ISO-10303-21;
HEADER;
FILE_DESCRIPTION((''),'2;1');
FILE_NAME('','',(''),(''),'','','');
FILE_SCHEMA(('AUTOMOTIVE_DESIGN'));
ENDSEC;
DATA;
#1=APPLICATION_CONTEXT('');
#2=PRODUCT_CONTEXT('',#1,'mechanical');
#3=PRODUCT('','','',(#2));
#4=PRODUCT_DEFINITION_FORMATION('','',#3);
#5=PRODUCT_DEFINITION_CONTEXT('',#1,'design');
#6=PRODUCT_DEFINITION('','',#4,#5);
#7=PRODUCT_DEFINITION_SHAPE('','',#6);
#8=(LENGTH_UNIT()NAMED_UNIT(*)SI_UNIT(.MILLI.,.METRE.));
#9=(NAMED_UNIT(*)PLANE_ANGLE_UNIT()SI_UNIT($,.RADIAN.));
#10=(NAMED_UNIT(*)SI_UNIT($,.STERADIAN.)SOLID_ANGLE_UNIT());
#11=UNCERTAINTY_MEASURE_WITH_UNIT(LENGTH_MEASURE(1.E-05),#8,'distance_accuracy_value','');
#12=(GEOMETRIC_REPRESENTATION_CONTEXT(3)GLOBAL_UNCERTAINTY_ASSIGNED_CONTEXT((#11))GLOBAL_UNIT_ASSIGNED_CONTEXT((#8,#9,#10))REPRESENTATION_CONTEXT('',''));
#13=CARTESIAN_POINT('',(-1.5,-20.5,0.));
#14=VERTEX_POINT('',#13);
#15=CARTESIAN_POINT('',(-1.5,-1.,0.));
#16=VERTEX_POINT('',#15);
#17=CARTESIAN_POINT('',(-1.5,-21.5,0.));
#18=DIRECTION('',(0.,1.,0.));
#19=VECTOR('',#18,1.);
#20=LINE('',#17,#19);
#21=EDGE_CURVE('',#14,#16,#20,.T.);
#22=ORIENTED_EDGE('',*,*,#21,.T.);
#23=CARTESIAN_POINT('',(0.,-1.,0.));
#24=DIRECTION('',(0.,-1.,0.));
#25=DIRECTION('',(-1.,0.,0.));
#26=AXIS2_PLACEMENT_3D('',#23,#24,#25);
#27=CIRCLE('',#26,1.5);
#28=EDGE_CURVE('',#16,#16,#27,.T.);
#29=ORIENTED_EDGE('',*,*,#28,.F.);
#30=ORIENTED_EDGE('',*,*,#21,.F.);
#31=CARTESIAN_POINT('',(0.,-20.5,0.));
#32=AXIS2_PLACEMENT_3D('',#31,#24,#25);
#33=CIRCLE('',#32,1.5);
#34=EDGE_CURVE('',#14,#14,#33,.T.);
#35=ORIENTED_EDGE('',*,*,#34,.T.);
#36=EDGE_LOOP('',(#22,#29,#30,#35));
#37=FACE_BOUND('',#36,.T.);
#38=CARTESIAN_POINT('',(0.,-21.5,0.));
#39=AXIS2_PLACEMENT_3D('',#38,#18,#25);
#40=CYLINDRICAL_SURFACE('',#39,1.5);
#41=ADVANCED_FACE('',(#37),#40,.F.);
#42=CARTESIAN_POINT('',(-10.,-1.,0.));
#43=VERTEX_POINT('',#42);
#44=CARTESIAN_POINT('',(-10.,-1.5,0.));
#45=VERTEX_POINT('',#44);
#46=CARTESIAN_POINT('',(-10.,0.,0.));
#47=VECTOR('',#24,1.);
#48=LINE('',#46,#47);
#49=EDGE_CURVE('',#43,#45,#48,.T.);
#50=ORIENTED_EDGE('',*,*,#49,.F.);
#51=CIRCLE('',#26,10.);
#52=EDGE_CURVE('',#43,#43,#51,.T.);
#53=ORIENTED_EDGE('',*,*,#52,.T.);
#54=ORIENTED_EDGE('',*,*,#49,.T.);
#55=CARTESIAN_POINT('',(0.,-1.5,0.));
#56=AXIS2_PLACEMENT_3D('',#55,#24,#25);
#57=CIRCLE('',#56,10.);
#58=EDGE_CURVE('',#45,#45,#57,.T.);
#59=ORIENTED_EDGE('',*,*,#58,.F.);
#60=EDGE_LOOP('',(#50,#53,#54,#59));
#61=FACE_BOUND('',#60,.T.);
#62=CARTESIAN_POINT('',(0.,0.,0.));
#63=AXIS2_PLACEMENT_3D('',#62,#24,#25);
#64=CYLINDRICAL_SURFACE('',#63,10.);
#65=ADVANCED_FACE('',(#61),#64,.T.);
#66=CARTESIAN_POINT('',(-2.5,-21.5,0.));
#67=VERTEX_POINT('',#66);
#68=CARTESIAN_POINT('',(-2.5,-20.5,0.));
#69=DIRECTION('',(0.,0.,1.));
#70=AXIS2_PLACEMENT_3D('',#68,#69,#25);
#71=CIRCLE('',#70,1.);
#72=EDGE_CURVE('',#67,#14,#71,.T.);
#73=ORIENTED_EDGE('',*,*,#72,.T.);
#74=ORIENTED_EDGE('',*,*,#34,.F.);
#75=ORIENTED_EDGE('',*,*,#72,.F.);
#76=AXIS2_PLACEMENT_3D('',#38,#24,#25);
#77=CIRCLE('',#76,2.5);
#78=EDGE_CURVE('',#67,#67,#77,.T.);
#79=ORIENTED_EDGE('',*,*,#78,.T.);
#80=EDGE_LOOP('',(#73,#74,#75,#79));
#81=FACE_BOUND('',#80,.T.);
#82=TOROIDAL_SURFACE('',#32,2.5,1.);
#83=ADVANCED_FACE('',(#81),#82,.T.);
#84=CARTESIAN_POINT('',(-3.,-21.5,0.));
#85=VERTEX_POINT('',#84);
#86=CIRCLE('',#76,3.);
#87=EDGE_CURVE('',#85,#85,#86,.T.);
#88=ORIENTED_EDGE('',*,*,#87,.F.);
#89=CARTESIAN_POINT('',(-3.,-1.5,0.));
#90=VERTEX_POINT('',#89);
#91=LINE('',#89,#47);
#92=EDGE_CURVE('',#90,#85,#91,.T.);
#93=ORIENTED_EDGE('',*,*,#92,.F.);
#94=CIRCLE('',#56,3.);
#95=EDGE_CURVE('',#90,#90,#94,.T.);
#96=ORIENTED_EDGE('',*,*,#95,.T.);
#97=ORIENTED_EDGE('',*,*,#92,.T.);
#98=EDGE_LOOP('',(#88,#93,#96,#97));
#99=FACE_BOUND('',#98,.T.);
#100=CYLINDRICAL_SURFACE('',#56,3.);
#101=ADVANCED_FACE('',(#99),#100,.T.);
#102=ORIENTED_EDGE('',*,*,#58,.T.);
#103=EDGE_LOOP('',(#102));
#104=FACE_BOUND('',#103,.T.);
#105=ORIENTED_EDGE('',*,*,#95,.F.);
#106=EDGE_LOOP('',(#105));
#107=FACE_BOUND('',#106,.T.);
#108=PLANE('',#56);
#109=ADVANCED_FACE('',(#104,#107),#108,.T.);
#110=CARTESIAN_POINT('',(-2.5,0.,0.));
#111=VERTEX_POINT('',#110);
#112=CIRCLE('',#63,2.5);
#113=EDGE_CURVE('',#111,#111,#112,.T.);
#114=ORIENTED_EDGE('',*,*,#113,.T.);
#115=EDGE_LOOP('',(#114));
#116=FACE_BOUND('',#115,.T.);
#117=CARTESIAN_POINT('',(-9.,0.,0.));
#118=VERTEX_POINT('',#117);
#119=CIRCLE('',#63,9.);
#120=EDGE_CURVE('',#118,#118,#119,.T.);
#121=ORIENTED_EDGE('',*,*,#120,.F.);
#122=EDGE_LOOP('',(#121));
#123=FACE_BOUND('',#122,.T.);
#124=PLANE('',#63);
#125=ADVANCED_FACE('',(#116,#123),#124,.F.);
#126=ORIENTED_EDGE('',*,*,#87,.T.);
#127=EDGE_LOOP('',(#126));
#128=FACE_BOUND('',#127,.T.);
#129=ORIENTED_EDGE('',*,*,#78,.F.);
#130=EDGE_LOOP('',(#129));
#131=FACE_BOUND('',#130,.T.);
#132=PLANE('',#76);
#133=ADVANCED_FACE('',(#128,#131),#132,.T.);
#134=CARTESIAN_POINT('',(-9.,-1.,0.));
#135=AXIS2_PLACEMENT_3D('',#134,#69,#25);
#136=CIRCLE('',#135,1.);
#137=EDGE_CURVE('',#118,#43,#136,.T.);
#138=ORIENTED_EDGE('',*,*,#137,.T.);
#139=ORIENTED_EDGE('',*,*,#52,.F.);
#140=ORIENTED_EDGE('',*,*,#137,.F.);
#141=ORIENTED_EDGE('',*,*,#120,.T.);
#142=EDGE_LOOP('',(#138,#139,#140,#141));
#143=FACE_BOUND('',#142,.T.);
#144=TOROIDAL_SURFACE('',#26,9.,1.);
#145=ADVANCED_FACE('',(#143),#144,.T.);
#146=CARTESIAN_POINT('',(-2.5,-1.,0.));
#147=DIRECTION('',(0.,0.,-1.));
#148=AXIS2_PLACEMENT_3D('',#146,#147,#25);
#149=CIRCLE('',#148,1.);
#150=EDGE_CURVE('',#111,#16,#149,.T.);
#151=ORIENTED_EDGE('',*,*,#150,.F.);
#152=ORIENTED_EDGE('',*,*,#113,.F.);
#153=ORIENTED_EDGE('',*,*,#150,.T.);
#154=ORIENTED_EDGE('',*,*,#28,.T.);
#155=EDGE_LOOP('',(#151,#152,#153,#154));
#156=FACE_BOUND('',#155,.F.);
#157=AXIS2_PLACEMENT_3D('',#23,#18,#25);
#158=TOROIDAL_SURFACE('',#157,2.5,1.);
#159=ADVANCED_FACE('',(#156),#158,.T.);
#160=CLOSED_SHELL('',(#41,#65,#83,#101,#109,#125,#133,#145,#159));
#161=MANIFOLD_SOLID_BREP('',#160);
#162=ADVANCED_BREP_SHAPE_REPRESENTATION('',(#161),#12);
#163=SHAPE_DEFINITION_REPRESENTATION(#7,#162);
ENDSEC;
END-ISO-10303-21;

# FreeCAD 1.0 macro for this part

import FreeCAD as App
import Part
import Sketcher

V = App.Vector


def edges_at(feature, points):
    """Names of the edges that pass closest to the given points."""
    edges = feature.Shape.Edges
    near = lambda p: min(range(len(edges)), key=lambda i: edges[i].distToShape(Part.Vertex(*p))[0])
    return sorted({f"Edge{near(p) + 1}" for p in points})

doc = App.newDocument("Part")
body = doc.addObject("PartDesign::Body", "Body")

# Sketch on XY plane
sketch1 = body.newObject("Sketcher::SketchObject", "Sketch")
sketch1.AttachmentSupport = (doc.getObject("XY_Plane"), [""])
sketch1.MapMode = "FlatFace"
sketch1.addGeometry(Part.LineSegment(V(-1.5, 0, 0), V(-10, 0, 0)), False)
sketch1.addGeometry(Part.LineSegment(V(-10, 0, 0), V(-10, -1.5, 0)), False)
sketch1.addGeometry(Part.LineSegment(V(-10, -1.5, 0), V(-3, -1.5, 0)), False)
sketch1.addGeometry(Part.LineSegment(V(-3, -1.5, 0), V(-3, -21.5, 0)), False)
sketch1.addGeometry(Part.LineSegment(V(-3, -21.5, 0), V(-1.5, -21.5, 0)), False)
sketch1.addGeometry(Part.LineSegment(V(-1.5, -21.5, 0), V(-1.5, 0, 0)), False)
sketch1.addConstraint(Sketcher.Constraint("Coincident", 0, 2, 1, 1))
sketch1.addConstraint(Sketcher.Constraint("Coincident", 1, 2, 2, 1))
sketch1.addConstraint(Sketcher.Constraint("Coincident", 2, 2, 3, 1))
sketch1.addConstraint(Sketcher.Constraint("Coincident", 3, 2, 4, 1))
sketch1.addConstraint(Sketcher.Constraint("Coincident", 4, 2, 5, 1))
sketch1.addConstraint(Sketcher.Constraint("Coincident", 5, 2, 0, 1))
sketch1.addConstraint(Sketcher.Constraint("Horizontal", 0))
sketch1.addConstraint(Sketcher.Constraint("Vertical", 1))
sketch1.addConstraint(Sketcher.Constraint("Horizontal", 2))
sketch1.addConstraint(Sketcher.Constraint("Vertical", 3))
sketch1.addConstraint(Sketcher.Constraint("Horizontal", 4))
sketch1.addConstraint(Sketcher.Constraint("Vertical", 5))
sketch1.addConstraint(Sketcher.Constraint("PointOnObject", 0, 2, -1))
sketch1.addConstraint(Sketcher.Constraint("Equal", 4, 1))
sketch1.addConstraint(Sketcher.Constraint("DistanceX", 2, 1, 2, 2, 7.0))
sketch1.addConstraint(Sketcher.Constraint("DistanceY", 3, 2, 3, 1, 20.0))
sketch1.addConstraint(Sketcher.Constraint("DistanceX", 0, 2, 0, 1, 8.5))
sketch1.addConstraint(Sketcher.Constraint("DistanceX", 0, 2, -1, 1, 10.0))
revolution = body.newObject("PartDesign::Revolution", "Revolution")
revolution.Profile = sketch1
revolution.ReferenceAxis = (sketch1, ["V_Axis"])
revolution.Angle = 360
doc.recompute()

fillet = body.newObject("PartDesign::Fillet", "Fillet")
fillet.Base = (revolution, edges_at(revolution, [(1.5, 0, 0), (10, 0, 0), (1.5, -21.5, 0)]))
fillet.Radius = 1

doc.recompute()
